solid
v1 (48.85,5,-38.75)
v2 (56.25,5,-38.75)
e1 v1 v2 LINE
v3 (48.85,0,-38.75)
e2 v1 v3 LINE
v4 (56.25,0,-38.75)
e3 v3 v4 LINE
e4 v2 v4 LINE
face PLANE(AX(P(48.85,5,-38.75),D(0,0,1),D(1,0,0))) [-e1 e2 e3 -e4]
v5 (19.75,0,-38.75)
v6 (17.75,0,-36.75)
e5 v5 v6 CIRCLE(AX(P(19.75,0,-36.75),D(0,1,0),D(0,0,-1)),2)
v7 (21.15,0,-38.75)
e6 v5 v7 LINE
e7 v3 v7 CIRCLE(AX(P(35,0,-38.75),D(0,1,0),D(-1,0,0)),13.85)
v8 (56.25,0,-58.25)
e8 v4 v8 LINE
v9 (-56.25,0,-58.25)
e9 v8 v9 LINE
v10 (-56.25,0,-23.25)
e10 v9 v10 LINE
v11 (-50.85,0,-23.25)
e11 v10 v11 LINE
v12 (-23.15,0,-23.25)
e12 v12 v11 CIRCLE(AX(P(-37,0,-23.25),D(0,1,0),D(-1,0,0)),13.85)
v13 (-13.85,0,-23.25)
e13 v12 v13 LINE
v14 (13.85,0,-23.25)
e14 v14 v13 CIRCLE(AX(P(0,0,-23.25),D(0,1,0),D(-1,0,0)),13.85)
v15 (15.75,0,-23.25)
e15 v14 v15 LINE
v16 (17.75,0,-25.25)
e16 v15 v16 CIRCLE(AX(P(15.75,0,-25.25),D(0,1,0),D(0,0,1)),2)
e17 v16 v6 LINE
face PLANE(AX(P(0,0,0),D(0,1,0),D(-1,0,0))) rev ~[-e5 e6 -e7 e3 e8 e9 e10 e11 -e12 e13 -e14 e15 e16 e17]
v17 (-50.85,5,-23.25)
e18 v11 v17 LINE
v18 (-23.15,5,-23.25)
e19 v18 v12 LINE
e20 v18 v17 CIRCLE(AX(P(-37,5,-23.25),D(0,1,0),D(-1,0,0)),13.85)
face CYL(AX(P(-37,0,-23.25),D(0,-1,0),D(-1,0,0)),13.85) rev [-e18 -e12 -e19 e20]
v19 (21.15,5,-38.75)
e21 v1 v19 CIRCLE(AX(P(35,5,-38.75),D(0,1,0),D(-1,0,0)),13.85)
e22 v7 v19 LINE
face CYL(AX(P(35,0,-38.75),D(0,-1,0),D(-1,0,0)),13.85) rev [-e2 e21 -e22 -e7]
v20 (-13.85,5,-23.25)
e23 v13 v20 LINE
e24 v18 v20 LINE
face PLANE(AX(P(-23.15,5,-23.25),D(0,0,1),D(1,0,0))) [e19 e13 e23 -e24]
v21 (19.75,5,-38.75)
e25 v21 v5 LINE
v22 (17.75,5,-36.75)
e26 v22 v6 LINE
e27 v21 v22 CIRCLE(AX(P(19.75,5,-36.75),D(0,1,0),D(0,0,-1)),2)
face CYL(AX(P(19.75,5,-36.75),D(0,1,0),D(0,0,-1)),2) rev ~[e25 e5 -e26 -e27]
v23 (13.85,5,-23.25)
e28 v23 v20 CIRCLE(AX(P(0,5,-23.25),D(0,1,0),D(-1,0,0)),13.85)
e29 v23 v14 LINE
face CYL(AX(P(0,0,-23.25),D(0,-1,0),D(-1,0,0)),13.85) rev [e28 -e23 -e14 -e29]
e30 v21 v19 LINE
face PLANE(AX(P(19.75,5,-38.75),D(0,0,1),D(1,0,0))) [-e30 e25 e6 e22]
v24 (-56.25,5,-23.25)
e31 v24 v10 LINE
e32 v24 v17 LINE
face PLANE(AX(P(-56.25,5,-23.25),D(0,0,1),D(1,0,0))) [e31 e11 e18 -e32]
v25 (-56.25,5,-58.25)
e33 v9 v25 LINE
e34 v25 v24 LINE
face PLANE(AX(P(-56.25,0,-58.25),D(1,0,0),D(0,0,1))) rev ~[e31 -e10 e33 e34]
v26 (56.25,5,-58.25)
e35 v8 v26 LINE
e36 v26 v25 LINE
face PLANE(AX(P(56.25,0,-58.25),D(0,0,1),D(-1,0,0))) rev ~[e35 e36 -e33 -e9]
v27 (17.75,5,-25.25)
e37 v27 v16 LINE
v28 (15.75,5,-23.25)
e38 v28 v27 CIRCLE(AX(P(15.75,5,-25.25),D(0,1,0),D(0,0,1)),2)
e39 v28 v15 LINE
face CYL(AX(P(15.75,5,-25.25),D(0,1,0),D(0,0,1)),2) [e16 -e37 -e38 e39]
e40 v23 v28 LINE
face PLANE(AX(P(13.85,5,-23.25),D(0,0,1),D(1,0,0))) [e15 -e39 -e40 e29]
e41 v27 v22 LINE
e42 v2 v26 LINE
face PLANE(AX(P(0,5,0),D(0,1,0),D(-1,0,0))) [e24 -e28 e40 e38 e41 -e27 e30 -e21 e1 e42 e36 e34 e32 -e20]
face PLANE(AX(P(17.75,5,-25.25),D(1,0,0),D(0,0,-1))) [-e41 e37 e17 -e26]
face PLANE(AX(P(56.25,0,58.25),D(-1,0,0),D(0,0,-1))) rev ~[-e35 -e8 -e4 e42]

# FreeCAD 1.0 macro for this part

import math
import FreeCAD as App
import Part
import Sketcher
from FreeCAD import Vector


def add_polygon(sketch, points):
    """Adds a closed chain of lines whose ends are joined by coincident constraints."""
    first, n = sketch.GeometryCount, len(points)
    for a, b in zip(points, points[1:] + points[:1]):
        sketch.addGeometry(Part.LineSegment(App.Vector(*a, 0), App.Vector(*b, 0)), False)
    for i in range(n):
        sketch.addConstraint(Sketcher.Constraint("Coincident", first + i, 2, first + (i + 1) % n, 1))

doc = App.newDocument("Part")
params = doc.addObject("Spreadsheet::Sheet", "Params")
for row, (alias, value) in enumerate([
    ("sketch1_diameter", "27.7 mm"),
    ("sketch1_diameter2", "47.7 mm"),
    ("sketch1_width", "112.5 mm"),
    ("sketch1_height", "116.5 mm"),
    ("pad1_length", "5 mm"),
    ("sketch2_radius", "2 mm"),
    ("sketch2_diameter", "47.7 mm"),
    ("sketch2_diameter2", "27.7 mm"),
    ("sketch2_height", "97 mm"),
    ("sketch2_width", "5.4 mm"),
], start=1):
    params.set(f"A{row}", alias)
    params.set(f"B{row}", "=" + value)
    params.setAlias(f"B{row}", alias)

body = doc.addObject("PartDesign::Body", "Body")

sketch1 = body.newObject("Sketcher::SketchObject", "Sketch")
sketch1.AttachmentSupport = (doc.getObject("XZ_Plane"), [""])
sketch1.MapMode = "FlatFace"
add_polygon(sketch1, [(-56, -58), (-56, 58), (56, 58), (56, -58)])
sketch1.addGeometry(Part.Circle(Vector(35, -39, 0), Vector(0, 0, 1), 14), False)
sketch1.addGeometry(Part.Circle(Vector(0, -23, 0), Vector(0, 0, 1), 14), False)
sketch1.addGeometry(Part.Circle(Vector(-37, -23, 0), Vector(0, 0, 1), 14), False)
sketch1.addGeometry(Part.Circle(Vector(31, 26, 0), Vector(0, 0, 1), 14), False)
sketch1.addGeometry(Part.Circle(Vector(-18, 28, 0), Vector(0, 0, 1), 24), False)
sketch1.addConstraint([
    Sketcher.Constraint("Vertical", 0),
    Sketcher.Constraint("Horizontal", 1),
    Sketcher.Constraint("Vertical", 2),
    Sketcher.Constraint("Horizontal", 3),
    Sketcher.Constraint("Equal", 4, 5),
    Sketcher.Constraint("Equal", 5, 6),
    Sketcher.Constraint("Equal", 6, 7),
    Sketcher.Constraint("Symmetric", 0, 2, 2, 2, -1, 1),
    Sketcher.Constraint("PointOnObject", 5, 3, -2),
    Sketcher.Constraint("Horizontal", 5, 3, 6, 3),
    Sketcher.Constraint("Diameter", 4, 27.7),
    Sketcher.Constraint("Diameter", 8, 47.7),
    Sketcher.Constraint("DistanceX", 1, 1, 1, 2, 112.5),
    Sketcher.Constraint("DistanceY", 0, 1, 0, 2, 116.5),
    Sketcher.Constraint("DistanceX", -1, 1, 4, 3, 35.0),
    Sketcher.Constraint("DistanceX", 6, 3, -1, 1, 37.0),
    Sketcher.Constraint("DistanceY", -1, 1, 8, 3, 28.0),
    Sketcher.Constraint("DistanceY", 2, 2, 5, 3, 35.0),
    Sketcher.Constraint("DistanceX", -1, 1, 7, 3, 30.9),
    Sketcher.Constraint("DistanceY", -1, 1, 7, 3, 25.8),
    Sketcher.Constraint("DistanceX", 8, 3, -1, 1, 18.5),
    Sketcher.Constraint("DistanceY", 2, 2, 4, 3, 19.5),
])
sketch1.setExpression("Constraints[14]", "Params.sketch1_diameter")
sketch1.setExpression("Constraints[15]", "Params.sketch1_diameter2")
sketch1.setExpression("Constraints[16]", "Params.sketch1_width")
sketch1.setExpression("Constraints[17]", "Params.sketch1_height")
pad1 = body.newObject("PartDesign::Pad", "Pad")
pad1.Profile = sketch1
pad1.setExpression("Length", "Params.pad1_length")
pad1.Reversed = True

sketch2 = body.newObject("Sketcher::SketchObject", "Sketch001")
sketch2.AttachmentSupport = (doc.getObject("XZ_Plane"), [""])
sketch2.MapMode = "FlatFace"
sketch2.AttachmentOffset = App.Placement(Vector(0, 0, -5), App.Rotation())
sketch2.addGeometry([
    Part.LineSegment(Vector(-50.9, -23.2, 0), Vector(-56.2, -23.2, 0)),
    Part.LineSegment(Vector(-56.2, -23.2, 0), Vector(-56.2, 58.2, 0)),
    Part.LineSegment(Vector(-56.2, 58.2, 0), Vector(56.2, 58.2, 0)),
    Part.LineSegment(Vector(56.2, 58.2, 0), Vector(56.2, -38.8, 0)),
    Part.LineSegment(Vector(56.2, -38.8, 0), Vector(48.9, -38.8, 0)),
    Part.ArcOfCircle(Part.Circle(Vector(35, -38.8, 0), Vector(0, 0, 1), 13.8), math.radians(0), math.radians(180)),
    Part.LineSegment(Vector(21.1, -38.8, 0), Vector(19.8, -38.8, 0)),
    Part.ArcOfCircle(Part.Circle(Vector(19.8, -36.8, 0), Vector(0, 0, 1), 2), math.radians(180), math.radians(270)),
    Part.LineSegment(Vector(17.8, -36.8, 0), Vector(17.8, -25.2, 0)),
    Part.ArcOfCircle(Part.Circle(Vector(15.8, -25.2, 0), Vector(0, 0, 1), 2), math.radians(0), math.radians(90)),
    Part.LineSegment(Vector(15.8, -23.2, 0), Vector(13.8, -23.2, 0)),
    Part.ArcOfCircle(Part.Circle(Vector(0, -23.2, 0), Vector(0, 0, 1), 13.8), math.radians(0), math.radians(180)),
    Part.LineSegment(Vector(-13.8, -23.2, 0), Vector(-23.1, -23.2, 0)),
    Part.ArcOfCircle(Part.Circle(Vector(-37, -23.2, 0), Vector(0, 0, 1), 13.8), math.radians(0), math.radians(180)),
    Part.Circle(Vector(-18.5, 28, 0), Vector(0, 0, 1), 23.9),
    Part.Circle(Vector(30.9, 25.8, 0), Vector(0, 0, 1), 13.8),
], False)
sketch2.addConstraint([
    Sketcher.Constraint("Coincident", 0, 2, 1, 1),
    Sketcher.Constraint("Coincident", 1, 2, 2, 1),
    Sketcher.Constraint("Coincident", 2, 2, 3, 1),
    Sketcher.Constraint("Coincident", 3, 2, 4, 1),
    Sketcher.Constraint("Coincident", 4, 2, 5, 1),
    Sketcher.Constraint("Coincident", 5, 2, 6, 1),
    Sketcher.Constraint("Tangent", 6, 2, 7, 2),
    Sketcher.Constraint("Tangent", 7, 1, 8, 1),
    Sketcher.Constraint("Tangent", 8, 2, 9, 1),
    Sketcher.Constraint("Tangent", 9, 2, 10, 1),
    Sketcher.Constraint("Coincident", 10, 2, 11, 1),
    Sketcher.Constraint("Coincident", 11, 2, 12, 1),
    Sketcher.Constraint("Coincident", 12, 2, 13, 1),
    Sketcher.Constraint("Coincident", 13, 2, 0, 1),
    Sketcher.Constraint("Horizontal", 0),
    Sketcher.Constraint("Vertical", 1),
    Sketcher.Constraint("Horizontal", 2),
    Sketcher.Constraint("Vertical", 3),
    Sketcher.Constraint("Horizontal", 4),
    Sketcher.Constraint("Horizontal", 6),
    Sketcher.Constraint("Vertical", 8),
    Sketcher.Constraint("Horizontal", 10),
    Sketcher.Constraint("Horizontal", 12),
    Sketcher.Constraint("Equal", 7, 9),
    Sketcher.Constraint("Equal", 5, 11),
    Sketcher.Constraint("Equal", 11, 13),
    Sketcher.Constraint("Equal", 13, 15),
    Sketcher.Constraint("Symmetric", 10, 2, 11, 2, -2),
    Sketcher.Constraint("Horizontal", 11, 3, 13, 3),
    Sketcher.Constraint("Horizontal", 13, 3, 0, 2),
    Sketcher.Constraint("Horizontal", 5, 3, 3, 2),
    Sketcher.Constraint("Horizontal", 4, 2, 5, 2),
    Sketcher.Constraint("Horizontal", 0, 2, 9, 2),
    Sketcher.Constraint("Radius", 7, 2.0),
    Sketcher.Constraint("DistanceX", -1, 1, 5, 3, 35.0),
    Sketcher.Constraint("Diameter", 14, 47.7),
    Sketcher.Constraint("Diameter", 15, 27.7),
    Sketcher.Constraint("DistanceY", 3, 2, 3, 1, 97.0),
    Sketcher.Constraint("DistanceX", 0, 2, 0, 1, 5.4),
    Sketcher.Constraint("DistanceX", 2, 1, 2, 2, 112.5),
    Sketcher.Constraint("DistanceX", 4, 2, 4, 1, 7.4),
    Sketcher.Constraint("DistanceX", 6, 2, 6, 1, 1.4),
    Sketcher.Constraint("DistanceY", 1, 1, 1, 2, 81.5),
    Sketcher.Constraint("DistanceY", -1, 1, 14, 3, 28.0),
    Sketcher.Constraint("DistanceX", 14, 3, -1, 1, 18.5),
    Sketcher.Constraint("DistanceX", -1, 1, 15, 3, 30.9),
    Sketcher.Constraint("DistanceY", -1, 1, 15, 3, 25.8),
    Sketcher.Constraint("DistanceY", 5, 3, -1, 1, 38.75),
])
sketch2.setExpression("Constraints[33]", "Params.sketch2_radius")
sketch2.setExpression("Constraints[35]", "Params.sketch2_diameter")
sketch2.setExpression("Constraints[36]", "Params.sketch2_diameter2")
sketch2.setExpression("Constraints[37]", "Params.sketch2_height")
sketch2.setExpression("Constraints[38]", "Params.sketch2_width")
pocket1 = body.newObject("PartDesign::Pocket", "Pocket")
pocket1.Profile = sketch2
pocket1.Type = "ThroughAll"
pocket1.Reversed = True

doc.recompute()
